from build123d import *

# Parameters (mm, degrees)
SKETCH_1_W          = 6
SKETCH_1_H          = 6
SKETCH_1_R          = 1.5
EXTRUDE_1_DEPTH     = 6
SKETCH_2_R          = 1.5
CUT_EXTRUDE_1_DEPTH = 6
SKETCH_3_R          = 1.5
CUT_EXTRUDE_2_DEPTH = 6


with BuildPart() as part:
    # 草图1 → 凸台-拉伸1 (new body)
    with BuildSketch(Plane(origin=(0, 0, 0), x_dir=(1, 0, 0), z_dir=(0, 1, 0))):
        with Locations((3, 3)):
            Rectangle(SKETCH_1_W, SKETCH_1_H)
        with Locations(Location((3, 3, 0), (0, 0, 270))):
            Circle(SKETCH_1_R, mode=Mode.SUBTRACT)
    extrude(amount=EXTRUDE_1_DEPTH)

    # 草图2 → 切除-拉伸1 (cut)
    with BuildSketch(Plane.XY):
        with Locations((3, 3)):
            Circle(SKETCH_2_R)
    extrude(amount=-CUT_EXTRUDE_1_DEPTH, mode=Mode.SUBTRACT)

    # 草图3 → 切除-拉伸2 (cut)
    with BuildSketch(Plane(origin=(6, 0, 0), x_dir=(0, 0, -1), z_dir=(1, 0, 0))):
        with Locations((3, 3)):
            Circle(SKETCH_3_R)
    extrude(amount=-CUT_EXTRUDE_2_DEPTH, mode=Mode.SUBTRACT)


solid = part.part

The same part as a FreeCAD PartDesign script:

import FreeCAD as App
import Part
import Sketcher


def add_polygon(sketch, points):
    """Adds a closed chain of lines whose ends are joined by coincident constraints."""
    first, n = sketch.GeometryCount, len(points)
    for a, b in zip(points, points[1:] + points[:1]):
        sketch.addGeometry(Part.LineSegment(App.Vector(*a, 0), App.Vector(*b, 0)), False)
    for i in range(n):
        sketch.addConstraint(Sketcher.Constraint("Coincident", first + i, 2, first + (i + 1) % n, 1))

doc = App.newDocument("Part")
body = doc.addObject("PartDesign::Body", "Body")

sketch1 = body.newObject("Sketcher::SketchObject", "Sketch")
sketch1.AttachmentSupport = (doc.getObject("XZ_Plane"), [""])
sketch1.MapMode = "FlatFace"
add_polygon(sketch1, [(0, -6), (0, 0), (6, 0), (6, -6)])
sketch1.addGeometry(Part.Circle(App.Vector(3, -3, 0), App.Vector(0, 0, 1), 1.5), False)
sketch1.addConstraint([
    Sketcher.Constraint("Vertical", 0),
    Sketcher.Constraint("Horizontal", 1),
    Sketcher.Constraint("Vertical", 2),
    Sketcher.Constraint("Horizontal", 3),
    Sketcher.Constraint("Coincident", 0, 2, -1, 1),
    Sketcher.Constraint("Equal", 3, 0),
    Sketcher.Constraint("Diameter", 4, 3.0),
    Sketcher.Constraint("DistanceX", 1, 1, 1, 2, 6.0),
    Sketcher.Constraint("DistanceX", -1, 1, 4, 3, 3.0),
    Sketcher.Constraint("DistanceY", 4, 3, -1, 1, 3.0),
])
pad1 = body.newObject("PartDesign::Pad", "Pad")
pad1.Profile = sketch1
pad1.Length = 6
pad1.Reversed = True

sketch2 = body.newObject("Sketcher::SketchObject", "Sketch001")
sketch2.AttachmentSupport = (doc.getObject("XY_Plane"), [""])
sketch2.MapMode = "FlatFace"
sketch2.addGeometry(Part.Circle(App.Vector(3, 3, 0), App.Vector(0, 0, 1), 1.5), False)
sketch2.addConstraint([
    Sketcher.Constraint("Diameter", 0, 3.0),
    Sketcher.Constraint("DistanceX", -1, 1, 0, 3, 3.0),
    Sketcher.Constraint("DistanceY", -1, 1, 0, 3, 3.0),
])
pocket1 = body.newObject("PartDesign::Pocket", "Pocket")
pocket1.Profile = sketch2
pocket1.Length = 6

sketch3 = body.newObject("Sketcher::SketchObject", "Sketch002")
sketch3.AttachmentSupport = (doc.getObject("YZ_Plane"), [""])
sketch3.MapMode = "FlatFace"
sketch3.AttachmentOffset = App.Placement(App.Vector(0, 0, 6), App.Rotation())
sketch3.addGeometry(Part.Circle(App.Vector(3, -3, 0), App.Vector(0, 0, 1), 1.5), False)
sketch3.addConstraint([
    Sketcher.Constraint("Diameter", 0, 3.0),
    Sketcher.Constraint("DistanceX", -1, 1, 0, 3, 3.0),
    Sketcher.Constraint("DistanceY", 0, 3, -1, 1, 3.0),
])
pocket2 = body.newObject("PartDesign::Pocket", "Pocket001")
pocket2.Profile = sketch3
pocket2.Length = 6

doc.recompute()
